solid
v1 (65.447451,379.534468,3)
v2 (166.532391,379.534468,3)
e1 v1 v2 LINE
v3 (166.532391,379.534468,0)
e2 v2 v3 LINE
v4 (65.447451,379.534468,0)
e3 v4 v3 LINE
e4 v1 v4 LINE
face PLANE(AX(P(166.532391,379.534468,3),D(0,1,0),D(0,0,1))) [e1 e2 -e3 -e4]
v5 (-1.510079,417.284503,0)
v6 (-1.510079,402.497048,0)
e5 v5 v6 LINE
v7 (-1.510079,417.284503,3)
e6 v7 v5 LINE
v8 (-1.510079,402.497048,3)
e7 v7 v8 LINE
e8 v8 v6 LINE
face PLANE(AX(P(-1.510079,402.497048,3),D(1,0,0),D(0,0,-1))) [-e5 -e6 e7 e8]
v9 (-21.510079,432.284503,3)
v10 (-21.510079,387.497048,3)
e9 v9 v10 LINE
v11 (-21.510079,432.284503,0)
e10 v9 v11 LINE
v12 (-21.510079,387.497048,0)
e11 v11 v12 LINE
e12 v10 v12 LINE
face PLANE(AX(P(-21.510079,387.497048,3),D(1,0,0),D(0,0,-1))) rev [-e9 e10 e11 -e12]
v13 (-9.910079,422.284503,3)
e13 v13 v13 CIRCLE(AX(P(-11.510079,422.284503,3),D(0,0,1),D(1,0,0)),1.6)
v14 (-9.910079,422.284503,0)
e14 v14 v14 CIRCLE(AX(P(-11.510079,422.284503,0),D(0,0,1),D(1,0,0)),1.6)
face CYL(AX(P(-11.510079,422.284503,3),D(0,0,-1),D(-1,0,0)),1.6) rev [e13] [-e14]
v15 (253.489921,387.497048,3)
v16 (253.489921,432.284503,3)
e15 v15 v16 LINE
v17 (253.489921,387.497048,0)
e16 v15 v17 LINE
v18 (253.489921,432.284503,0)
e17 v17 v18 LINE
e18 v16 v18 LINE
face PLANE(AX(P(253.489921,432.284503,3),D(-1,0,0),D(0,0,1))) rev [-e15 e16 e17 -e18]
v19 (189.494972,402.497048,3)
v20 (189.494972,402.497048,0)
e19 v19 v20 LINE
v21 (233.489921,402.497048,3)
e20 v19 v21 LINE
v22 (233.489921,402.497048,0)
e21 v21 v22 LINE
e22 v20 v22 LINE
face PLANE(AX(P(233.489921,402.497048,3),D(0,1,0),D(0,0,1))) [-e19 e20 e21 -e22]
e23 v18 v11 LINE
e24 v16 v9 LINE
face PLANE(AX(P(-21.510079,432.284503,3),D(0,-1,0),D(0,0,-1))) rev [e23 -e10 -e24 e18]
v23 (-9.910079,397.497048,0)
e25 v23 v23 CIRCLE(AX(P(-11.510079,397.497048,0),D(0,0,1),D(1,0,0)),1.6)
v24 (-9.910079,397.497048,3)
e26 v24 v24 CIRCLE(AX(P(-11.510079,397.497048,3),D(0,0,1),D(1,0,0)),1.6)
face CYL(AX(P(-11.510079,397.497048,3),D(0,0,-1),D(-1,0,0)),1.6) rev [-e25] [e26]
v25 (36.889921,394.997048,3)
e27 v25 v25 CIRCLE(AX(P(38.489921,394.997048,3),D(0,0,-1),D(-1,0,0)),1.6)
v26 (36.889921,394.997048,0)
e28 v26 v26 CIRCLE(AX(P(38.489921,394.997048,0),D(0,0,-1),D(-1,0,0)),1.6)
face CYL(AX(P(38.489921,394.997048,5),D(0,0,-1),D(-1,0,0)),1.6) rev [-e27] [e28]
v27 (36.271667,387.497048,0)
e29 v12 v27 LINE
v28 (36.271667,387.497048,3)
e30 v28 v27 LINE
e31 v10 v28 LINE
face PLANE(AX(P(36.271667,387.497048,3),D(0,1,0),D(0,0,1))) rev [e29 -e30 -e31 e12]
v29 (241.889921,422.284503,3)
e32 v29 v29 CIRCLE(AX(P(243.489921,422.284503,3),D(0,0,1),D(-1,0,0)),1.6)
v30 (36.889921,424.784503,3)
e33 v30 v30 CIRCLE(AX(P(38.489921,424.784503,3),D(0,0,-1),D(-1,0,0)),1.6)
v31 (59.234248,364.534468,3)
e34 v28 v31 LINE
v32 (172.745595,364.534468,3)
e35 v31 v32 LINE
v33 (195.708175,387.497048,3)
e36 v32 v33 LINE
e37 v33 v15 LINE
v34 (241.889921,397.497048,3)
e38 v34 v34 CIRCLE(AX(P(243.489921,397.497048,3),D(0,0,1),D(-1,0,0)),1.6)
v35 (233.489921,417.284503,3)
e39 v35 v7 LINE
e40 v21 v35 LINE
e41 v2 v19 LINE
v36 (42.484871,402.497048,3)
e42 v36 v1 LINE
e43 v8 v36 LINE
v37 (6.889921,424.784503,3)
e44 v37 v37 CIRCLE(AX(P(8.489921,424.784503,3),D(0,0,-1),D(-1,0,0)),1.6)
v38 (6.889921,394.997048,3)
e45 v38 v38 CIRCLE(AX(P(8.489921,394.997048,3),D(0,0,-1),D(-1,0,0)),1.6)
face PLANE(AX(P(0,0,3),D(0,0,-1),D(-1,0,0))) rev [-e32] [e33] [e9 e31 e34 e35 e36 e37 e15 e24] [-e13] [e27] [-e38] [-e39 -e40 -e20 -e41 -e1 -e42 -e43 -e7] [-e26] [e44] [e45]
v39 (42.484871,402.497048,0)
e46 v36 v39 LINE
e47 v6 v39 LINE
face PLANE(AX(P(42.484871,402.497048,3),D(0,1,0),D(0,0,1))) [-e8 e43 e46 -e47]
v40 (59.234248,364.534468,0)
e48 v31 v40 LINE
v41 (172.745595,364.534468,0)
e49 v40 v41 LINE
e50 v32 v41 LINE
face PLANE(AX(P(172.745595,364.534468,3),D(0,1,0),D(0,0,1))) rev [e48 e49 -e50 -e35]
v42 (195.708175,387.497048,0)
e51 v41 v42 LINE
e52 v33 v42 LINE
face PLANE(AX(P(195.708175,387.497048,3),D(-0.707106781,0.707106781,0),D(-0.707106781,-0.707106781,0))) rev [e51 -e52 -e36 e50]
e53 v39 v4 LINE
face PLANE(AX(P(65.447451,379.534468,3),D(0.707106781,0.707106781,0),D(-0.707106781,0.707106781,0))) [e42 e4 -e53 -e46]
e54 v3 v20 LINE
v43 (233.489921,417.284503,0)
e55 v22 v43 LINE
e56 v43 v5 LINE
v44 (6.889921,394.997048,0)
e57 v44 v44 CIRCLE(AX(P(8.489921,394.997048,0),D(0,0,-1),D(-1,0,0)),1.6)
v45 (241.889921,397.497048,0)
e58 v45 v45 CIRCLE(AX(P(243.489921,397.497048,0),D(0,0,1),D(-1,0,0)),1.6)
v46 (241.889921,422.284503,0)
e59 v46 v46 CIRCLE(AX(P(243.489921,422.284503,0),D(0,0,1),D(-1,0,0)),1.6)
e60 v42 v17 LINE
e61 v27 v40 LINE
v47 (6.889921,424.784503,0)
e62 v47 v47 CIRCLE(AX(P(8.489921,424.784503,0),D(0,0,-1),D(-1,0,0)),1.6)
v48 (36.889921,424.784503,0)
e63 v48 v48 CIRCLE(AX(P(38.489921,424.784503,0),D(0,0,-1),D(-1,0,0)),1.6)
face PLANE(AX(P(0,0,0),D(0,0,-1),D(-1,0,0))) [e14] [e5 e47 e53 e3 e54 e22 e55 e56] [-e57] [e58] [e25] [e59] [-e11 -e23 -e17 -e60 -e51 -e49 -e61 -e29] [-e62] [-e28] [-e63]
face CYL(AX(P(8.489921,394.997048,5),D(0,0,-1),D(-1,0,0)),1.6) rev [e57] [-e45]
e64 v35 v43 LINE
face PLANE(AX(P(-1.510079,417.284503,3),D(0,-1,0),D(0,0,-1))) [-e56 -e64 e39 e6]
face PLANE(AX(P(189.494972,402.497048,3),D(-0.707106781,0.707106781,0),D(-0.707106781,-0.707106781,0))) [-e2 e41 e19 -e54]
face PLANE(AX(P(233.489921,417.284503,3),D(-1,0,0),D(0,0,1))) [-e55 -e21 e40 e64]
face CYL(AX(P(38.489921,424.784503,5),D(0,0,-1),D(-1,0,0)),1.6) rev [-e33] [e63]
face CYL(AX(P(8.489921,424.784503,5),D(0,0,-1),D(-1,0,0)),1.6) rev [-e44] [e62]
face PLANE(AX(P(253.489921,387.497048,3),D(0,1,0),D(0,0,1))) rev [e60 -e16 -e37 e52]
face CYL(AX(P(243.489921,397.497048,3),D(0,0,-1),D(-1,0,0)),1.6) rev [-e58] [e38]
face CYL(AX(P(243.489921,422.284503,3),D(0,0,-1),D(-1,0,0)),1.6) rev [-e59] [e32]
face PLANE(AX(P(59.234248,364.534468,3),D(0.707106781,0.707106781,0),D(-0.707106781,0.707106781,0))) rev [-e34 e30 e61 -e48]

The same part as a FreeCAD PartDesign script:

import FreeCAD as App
import Part
import Sketcher

V = App.Vector


def add_polygon(sketch, points):
    """Adds a closed chain of lines whose ends are joined by coincident constraints."""
    first, n = sketch.GeometryCount, len(points)
    for a, b in zip(points, points[1:] + points[:1]):
        sketch.addGeometry(Part.LineSegment(App.Vector(*a, 0), App.Vector(*b, 0)), False)
    for i in range(n):
        sketch.addConstraint(Sketcher.Constraint("Coincident", first + i, 2, first + (i + 1) % n, 1))

doc = App.newDocument("Part")
body = doc.addObject("PartDesign::Body", "Body")

sketch1 = body.newObject("Sketcher::SketchObject", "Sketch")
sketch1.AttachmentSupport = (doc.getObject("XY_Plane"), [""])
sketch1.MapMode = "FlatFace"
add_polygon(sketch1, [(253.5, 432.3), (-21.5, 432.3), (-21.5, 387.5), (36.3, 387.5), (59.2, 364.5), (172.7, 364.5), (195.7, 387.5), (253.5, 387.5)])
sketch1.addGeometry(Part.Circle(V(243.5, 397.5, 0), V(0, 0, 1), 1.6), False)
add_polygon(sketch1, [(-1.5, 417.3), (233.5, 417.3), (233.5, 402.5), (189.5, 402.5), (166.5, 379.5), (65.4, 379.5), (42.5, 402.5), (-1.5, 402.5)])
sketch1.addGeometry(Part.Circle(V(-11.5, 397.5, 0), V(0, 0, 1), 1.6), False)
sketch1.addGeometry(Part.Circle(V(243.5, 422.3, 0), V(0, 0, 1), 1.6), False)
sketch1.addGeometry(Part.Circle(V(-11.5, 422.3, 0), V(0, 0, 1), 1.6), False)
sketch1.addConstraint(Sketcher.Constraint("Horizontal", 0))
sketch1.addConstraint(Sketcher.Constraint("Vertical", 1))
sketch1.addConstraint(Sketcher.Constraint("Horizontal", 2))
sketch1.addConstraint(Sketcher.Constraint("Horizontal", 4))
sketch1.addConstraint(Sketcher.Constraint("Horizontal", 6))
sketch1.addConstraint(Sketcher.Constraint("Vertical", 7))
sketch1.addConstraint(Sketcher.Constraint("Horizontal", 9))
sketch1.addConstraint(Sketcher.Constraint("Vertical", 10))
sketch1.addConstraint(Sketcher.Constraint("Horizontal", 11))
sketch1.addConstraint(Sketcher.Constraint("Horizontal", 13))
sketch1.addConstraint(Sketcher.Constraint("Horizontal", 15))
sketch1.addConstraint(Sketcher.Constraint("Vertical", 16))
sketch1.addConstraint(Sketcher.Constraint("Equal", 8, 17))
sketch1.addConstraint(Sketcher.Constraint("Equal", 17, 18))
sketch1.addConstraint(Sketcher.Constraint("Equal", 18, 19))
sketch1.addConstraint(Sketcher.Constraint("Perpendicular", 3, 5))
sketch1.addConstraint(Sketcher.Constraint("Parallel", 5, 12))
sketch1.addConstraint(Sketcher.Constraint("Perpendicular", 12, 14))
sketch1.addConstraint(Sketcher.Constraint("Horizontal", 8, 3, 17, 3))
sketch1.addConstraint(Sketcher.Constraint("Horizontal", 18, 3, 19, 3))
sketch1.addConstraint(Sketcher.Constraint("Horizontal", 2, 2, 5, 2))
sketch1.addConstraint(Sketcher.Constraint("Horizontal", 11, 2, 14, 2))
sketch1.addConstraint(Sketcher.Constraint("Vertical", 8, 3, 18, 3))
sketch1.addConstraint(Sketcher.Constraint("Vertical", 17, 3, 19, 3))
sketch1.addConstraint(Sketcher.Constraint("Equal", 2, 6))
sketch1.addConstraint(Sketcher.Constraint("Equal", 11, 15))
sketch1.addConstraint(Sketcher.Constraint("Equal", 3, 5))
sketch1.addConstraint(Sketcher.Constraint("Equal", 5, 12))
sketch1.addConstraint(Sketcher.Constraint("Diameter", 8, 3.2))
sketch1.addConstraint(Sketcher.Constraint("DistanceX", 0, 2, 0, 1, 275.0))
sketch1.addConstraint(Sketcher.Constraint("DistanceX", 9, 1, 9, 2, 235.0))
sketch1.addConstraint(Sketcher.Constraint("DistanceX", 17, 3, 8, 3, 255.0))
sketch1.addConstraint(Sketcher.Constraint("DistanceX", 0, 2, 19, 3, 10.0))
sketch1.addConstraint(Sketcher.Constraint("DistanceY", 19, 3, 0, 2, 10.0))
sketch1.addConstraint(Sketcher.Constraint("DistanceY", 1, 2, 17, 3, 10.0))
sketch1.addConstraint(Sketcher.Constraint("DistanceX", 9, 2, 18, 3, 10.0))
sketch1.addConstraint(Sketcher.Constraint("DistanceY", 9, 2, 18, 3, 5.0))
sketch1.addConstraint(Sketcher.Constraint("DistanceY", 8, 3, 10, 2, 5.0))
sketch1.addConstraint(Sketcher.Constraint("DistanceX", 11, 2, 11, 1, 43.994949))
sketch1.addConstraint(Sketcher.Constraint("DistanceX", 13, 2, 13, 1, 101.08494))
sketch1.addConstraint(Sketcher.Constraint("DistanceX", 2, 1, 2, 2, 57.781746))
sketch1.addConstraint(Sketcher.Constraint("DistanceY", 1, 2, 1, 1, 44.787455))
sketch1.addConstraint(Sketcher.Constraint("DistanceX", -1, 1, 8, 3, 243.489921))
sketch1.addConstraint(Sketcher.Constraint("DistanceY", -1, 1, 8, 3, 397.497048))
pad1 = body.newObject("PartDesign::Pad", "Pad")
pad1.Profile = sketch1
pad1.Length = 3

sketch2 = body.newObject("Sketcher::SketchObject", "Sketch001")
sketch2.AttachmentSupport = (doc.getObject("XY_Plane"), [""])
sketch2.MapMode = "FlatFace"
sketch2.addGeometry(Part.Circle(V(38.5, 424.8, 0), V(0, 0, 1), 1.6), False)
sketch2.addGeometry(Part.Circle(V(8.5, 424.8, 0), V(0, 0, 1), 1.6), False)
sketch2.addGeometry(Part.Circle(V(38.5, 395, 0), V(0, 0, 1), 1.6), False)
sketch2.addGeometry(Part.Circle(V(8.5, 395, 0), V(0, 0, 1), 1.6), False)
sketch2.addConstraint(Sketcher.Constraint("Equal", 0, 1))
sketch2.addConstraint(Sketcher.Constraint("Equal", 1, 2))
sketch2.addConstraint(Sketcher.Constraint("Equal", 2, 3))
sketch2.addConstraint(Sketcher.Constraint("Horizontal", 0, 3, 1, 3))
sketch2.addConstraint(Sketcher.Constraint("Horizontal", 2, 3, 3, 3))
sketch2.addConstraint(Sketcher.Constraint("Vertical", 0, 3, 2, 3))
sketch2.addConstraint(Sketcher.Constraint("Vertical", 1, 3, 3, 3))
sketch2.addConstraint(Sketcher.Constraint("Diameter", 0, 3.2))
sketch2.addConstraint(Sketcher.Constraint("DistanceX", 1, 3, 0, 3, 30.0))
sketch2.addConstraint(Sketcher.Constraint("DistanceX", -1, 1, 0, 3, 38.489921))
sketch2.addConstraint(Sketcher.Constraint("DistanceY", -1, 1, 2, 3, 394.997048))
sketch2.addConstraint(Sketcher.Constraint("DistanceY", -1, 1, 0, 3, 424.784503))
pocket1 = body.newObject("PartDesign::Pocket", "Pocket")
pocket1.Profile = sketch2
pocket1.Length = 5
pocket1.Reversed = True

doc.recompute()
